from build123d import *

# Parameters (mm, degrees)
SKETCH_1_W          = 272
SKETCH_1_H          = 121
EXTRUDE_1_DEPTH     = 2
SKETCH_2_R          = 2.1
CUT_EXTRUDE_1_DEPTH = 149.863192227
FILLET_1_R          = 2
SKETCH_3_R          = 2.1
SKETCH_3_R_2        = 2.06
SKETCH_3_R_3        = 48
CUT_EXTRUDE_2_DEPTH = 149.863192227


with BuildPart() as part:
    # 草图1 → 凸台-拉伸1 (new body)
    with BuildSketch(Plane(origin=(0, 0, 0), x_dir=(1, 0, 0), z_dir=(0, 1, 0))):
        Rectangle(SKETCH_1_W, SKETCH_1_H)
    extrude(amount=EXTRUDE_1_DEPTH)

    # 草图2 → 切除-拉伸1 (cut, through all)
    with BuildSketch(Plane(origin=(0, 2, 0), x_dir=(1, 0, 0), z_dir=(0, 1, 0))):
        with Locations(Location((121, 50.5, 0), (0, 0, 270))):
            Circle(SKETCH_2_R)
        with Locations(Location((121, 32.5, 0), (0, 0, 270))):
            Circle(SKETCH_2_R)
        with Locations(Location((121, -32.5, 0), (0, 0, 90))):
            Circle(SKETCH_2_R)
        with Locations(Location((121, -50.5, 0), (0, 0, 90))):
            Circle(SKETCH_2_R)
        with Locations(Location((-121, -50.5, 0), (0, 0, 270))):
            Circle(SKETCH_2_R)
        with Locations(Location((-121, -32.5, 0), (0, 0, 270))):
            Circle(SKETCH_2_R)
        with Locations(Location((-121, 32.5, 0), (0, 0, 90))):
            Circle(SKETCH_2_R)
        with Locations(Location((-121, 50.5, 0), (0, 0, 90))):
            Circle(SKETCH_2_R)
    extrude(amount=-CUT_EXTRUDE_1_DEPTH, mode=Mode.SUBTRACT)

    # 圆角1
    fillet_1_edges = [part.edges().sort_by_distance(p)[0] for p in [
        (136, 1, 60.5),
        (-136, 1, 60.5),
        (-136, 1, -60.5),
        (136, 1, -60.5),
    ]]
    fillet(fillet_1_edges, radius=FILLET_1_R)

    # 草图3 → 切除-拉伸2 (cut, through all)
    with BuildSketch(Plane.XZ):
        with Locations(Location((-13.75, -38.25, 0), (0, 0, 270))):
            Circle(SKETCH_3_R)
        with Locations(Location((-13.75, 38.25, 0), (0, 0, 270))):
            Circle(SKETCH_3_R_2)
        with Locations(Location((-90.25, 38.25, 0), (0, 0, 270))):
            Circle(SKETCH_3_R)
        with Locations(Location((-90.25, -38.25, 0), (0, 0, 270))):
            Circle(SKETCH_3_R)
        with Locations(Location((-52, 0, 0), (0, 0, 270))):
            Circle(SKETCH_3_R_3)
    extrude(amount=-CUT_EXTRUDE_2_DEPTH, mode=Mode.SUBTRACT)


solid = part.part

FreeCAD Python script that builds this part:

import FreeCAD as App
import Part
import Sketcher

V = App.Vector


def edges_at(feature, points):
    """Names of the edges that pass closest to the given points."""
    edges = feature.Shape.Edges
    near = lambda p: min(range(len(edges)), key=lambda i: edges[i].distToShape(Part.Vertex(*p))[0])
    return sorted({f"Edge{near(p) + 1}" for p in points})

doc = App.newDocument("Part")
params = doc.addObject("Spreadsheet::Sheet", "Params")
for row, (alias, value) in enumerate([
    ("sketch1_width", "272 mm"),
    ("sketch1_height", "121 mm"),
    ("pad1_length", "2 mm"),
    ("sketch2_diameter", "4.2 mm"),
    ("fillet_radius", "2 mm"),
    ("sketch3_diameter", "96 mm"),
    ("sketch3_diameter2", "4.2 mm"),
    ("sketch3_diameter3", "4.12 mm"),
], start=1):
    params.set(f"A{row}", alias)
    params.set(f"B{row}", "=" + value)
    params.setAlias(f"B{row}", alias)

body = doc.addObject("PartDesign::Body", "Body")

# Sketch on XZ plane
sketch1 = body.newObject("Sketcher::SketchObject", "Sketch")
sketch1.AttachmentSupport = (doc.getObject("XZ_Plane"), [""])
sketch1.MapMode = "FlatFace"
sketch1.addGeometry([
    Part.LineSegment(V(-136, -60.5, 0), V(-136, 60.5, 0)),
    Part.LineSegment(V(-136, 60.5, 0), V(136, 60.5, 0)),
    Part.LineSegment(V(136, 60.5, 0), V(136, -60.5, 0)),
    Part.LineSegment(V(136, -60.5, 0), V(-136, -60.5, 0)),
], False)
sketch1.addConstraint([
    Sketcher.Constraint("Coincident", 0, 2, 1, 1),
    Sketcher.Constraint("Coincident", 1, 2, 2, 1),
    Sketcher.Constraint("Coincident", 2, 2, 3, 1),
    Sketcher.Constraint("Coincident", 3, 2, 0, 1),
    Sketcher.Constraint("Vertical", 0),
    Sketcher.Constraint("Horizontal", 1),
    Sketcher.Constraint("Vertical", 2),
    Sketcher.Constraint("Horizontal", 3),
    Sketcher.Constraint("Symmetric", 0, 2, 2, 2, -1, 1),
    Sketcher.Constraint("DistanceX", 1, 1, 1, 2, 272.0),
    Sketcher.Constraint("DistanceY", 0, 1, 0, 2, 121.0),
])
sketch1.setExpression("Constraints[9]", "Params.sketch1_width")
sketch1.setExpression("Constraints[10]", "Params.sketch1_height")
pad1 = body.newObject("PartDesign::Pad", "Pad")
pad1.Profile = sketch1
pad1.setExpression("Length", "Params.pad1_length")
pad1.Reversed = True

# Sketch on XZ plane
sketch2 = body.newObject("Sketcher::SketchObject", "Sketch001")
sketch2.AttachmentSupport = (doc.getObject("XZ_Plane"), [""])
sketch2.MapMode = "FlatFace"
sketch2.AttachmentOffset = App.Placement(V(0, 0, -2), App.Rotation())
sketch2.addGeometry([
    Part.Circle(V(121, -50.5, 0), V(0, 0, 1), 2.1),  # 0
    Part.Circle(V(121, -32.5, 0), V(0, 0, 1), 2.1),  # 1
    Part.Circle(V(121, 32.5, 0), V(0, 0, 1), 2.1),  # 2
    Part.Circle(V(121, 50.5, 0), V(0, 0, 1), 2.1),  # 3
    Part.Circle(V(-121, 50.5, 0), V(0, 0, 1), 2.1),  # 4
    Part.Circle(V(-121, 32.5, 0), V(0, 0, 1), 2.1),  # 5
    Part.Circle(V(-121, -32.5, 0), V(0, 0, 1), 2.1),  # 6
    Part.Circle(V(-121, -50.5, 0), V(0, 0, 1), 2.1),  # 7
], False)
sketch2.addConstraint([
    Sketcher.Constraint("Equal", 0, 1),
    Sketcher.Constraint("Equal", 1, 2),
    Sketcher.Constraint("Equal", 2, 3),
    Sketcher.Constraint("Equal", 3, 4),
    Sketcher.Constraint("Equal", 4, 5),
    Sketcher.Constraint("Equal", 5, 6),
    Sketcher.Constraint("Equal", 6, 7),
    Sketcher.Constraint("Symmetric", 0, 3, 4, 3, -1, 1),
    Sketcher.Constraint("Symmetric", 1, 3, 5, 3, -1, 1),
    Sketcher.Constraint("Symmetric", 2, 3, 6, 3, -1, 1),
    Sketcher.Constraint("Symmetric", 3, 3, 7, 3, -1, 1),
    Sketcher.Constraint("Symmetric", 3, 3, 4, 3, -2),
    Sketcher.Constraint("Symmetric", 2, 3, 5, 3, -2),
    Sketcher.Constraint("Vertical", 0, 3, 1, 3),
    Sketcher.Constraint("Diameter", 0, 4.2),
    Sketcher.Constraint("DistanceX", -1, 1, 0, 3, 121.0),
    Sketcher.Constraint("DistanceY", 0, 3, 1, 3, 18.0),
    Sketcher.Constraint("DistanceY", 1, 3, 2, 3, 65.0),
])
sketch2.setExpression("Constraints[14]", "Params.sketch2_diameter")
pocket1 = body.newObject("PartDesign::Pocket", "Pocket")
pocket1.Profile = sketch2
pocket1.Type = "ThroughAll"
pocket1.Reversed = True
doc.recompute()

fillet = body.newObject("PartDesign::Fillet", "Fillet")
fillet.Base = (pocket1, edges_at(pocket1, [
    (136, 1, 60.5),
    (-136, 1, 60.5),
    (-136, 1, -60.5),
    (136, 1, -60.5),
]))
fillet.setExpression("Radius", "Params.fillet_radius")

# Sketch on XZ plane
sketch3 = body.newObject("Sketcher::SketchObject", "Sketch002")
sketch3.AttachmentSupport = (doc.getObject("XZ_Plane"), [""])
sketch3.MapMode = "FlatFace"
sketch3.addGeometry([
    Part.Circle(V(-13.75, -38.25, 0), V(0, 0, 1), 2.1),  # 0
    Part.Circle(V(-13.75, 38.25, 0), V(0, 0, 1), 2.06),  # 1
    Part.Circle(V(-90.25, 38.25, 0), V(0, 0, 1), 2.1),  # 2
    Part.Circle(V(-90.25, -38.25, 0), V(0, 0, 1), 2.1),  # 3
    Part.Circle(V(-52, 0, 0), V(0, 0, 1), 48),  # 4
], False)
sketch3.addConstraint([
    Sketcher.Constraint("Equal", 0, 2),
    Sketcher.Constraint("Equal", 2, 3),
    Sketcher.Constraint("Symmetric", 0, 3, 1, 3, -1),
    Sketcher.Constraint("Symmetric", 2, 3, 3, 3, -1),
    Sketcher.Constraint("PointOnObject", 4, 3, -1),
    Sketcher.Constraint("Horizontal", 1, 3, 2, 3),
    Sketcher.Constraint("Diameter", 4, 96.0),
    Sketcher.Constraint("Diameter", 0, 4.2),
    Sketcher.Constraint("Diameter", 1, 4.12),
    Sketcher.Constraint("DistanceX", 4, 3, -1, 1, 52.0),
    Sketcher.Constraint("DistanceY", 0, 3, 1, 3, 76.5),
    Sketcher.Constraint("DistanceX", 2, 3, 1, 3, 76.5),
    Sketcher.Constraint("DistanceX", 0, 3, -1, 1, 13.75),
])
sketch3.setExpression("Constraints[6]", "Params.sketch3_diameter")
sketch3.setExpression("Constraints[7]", "Params.sketch3_diameter2")
sketch3.setExpression("Constraints[8]", "Params.sketch3_diameter3")
pocket2 = body.newObject("PartDesign::Pocket", "Pocket001")
pocket2.Profile = sketch3
pocket2.Type = "ThroughAll"

doc.recompute()
